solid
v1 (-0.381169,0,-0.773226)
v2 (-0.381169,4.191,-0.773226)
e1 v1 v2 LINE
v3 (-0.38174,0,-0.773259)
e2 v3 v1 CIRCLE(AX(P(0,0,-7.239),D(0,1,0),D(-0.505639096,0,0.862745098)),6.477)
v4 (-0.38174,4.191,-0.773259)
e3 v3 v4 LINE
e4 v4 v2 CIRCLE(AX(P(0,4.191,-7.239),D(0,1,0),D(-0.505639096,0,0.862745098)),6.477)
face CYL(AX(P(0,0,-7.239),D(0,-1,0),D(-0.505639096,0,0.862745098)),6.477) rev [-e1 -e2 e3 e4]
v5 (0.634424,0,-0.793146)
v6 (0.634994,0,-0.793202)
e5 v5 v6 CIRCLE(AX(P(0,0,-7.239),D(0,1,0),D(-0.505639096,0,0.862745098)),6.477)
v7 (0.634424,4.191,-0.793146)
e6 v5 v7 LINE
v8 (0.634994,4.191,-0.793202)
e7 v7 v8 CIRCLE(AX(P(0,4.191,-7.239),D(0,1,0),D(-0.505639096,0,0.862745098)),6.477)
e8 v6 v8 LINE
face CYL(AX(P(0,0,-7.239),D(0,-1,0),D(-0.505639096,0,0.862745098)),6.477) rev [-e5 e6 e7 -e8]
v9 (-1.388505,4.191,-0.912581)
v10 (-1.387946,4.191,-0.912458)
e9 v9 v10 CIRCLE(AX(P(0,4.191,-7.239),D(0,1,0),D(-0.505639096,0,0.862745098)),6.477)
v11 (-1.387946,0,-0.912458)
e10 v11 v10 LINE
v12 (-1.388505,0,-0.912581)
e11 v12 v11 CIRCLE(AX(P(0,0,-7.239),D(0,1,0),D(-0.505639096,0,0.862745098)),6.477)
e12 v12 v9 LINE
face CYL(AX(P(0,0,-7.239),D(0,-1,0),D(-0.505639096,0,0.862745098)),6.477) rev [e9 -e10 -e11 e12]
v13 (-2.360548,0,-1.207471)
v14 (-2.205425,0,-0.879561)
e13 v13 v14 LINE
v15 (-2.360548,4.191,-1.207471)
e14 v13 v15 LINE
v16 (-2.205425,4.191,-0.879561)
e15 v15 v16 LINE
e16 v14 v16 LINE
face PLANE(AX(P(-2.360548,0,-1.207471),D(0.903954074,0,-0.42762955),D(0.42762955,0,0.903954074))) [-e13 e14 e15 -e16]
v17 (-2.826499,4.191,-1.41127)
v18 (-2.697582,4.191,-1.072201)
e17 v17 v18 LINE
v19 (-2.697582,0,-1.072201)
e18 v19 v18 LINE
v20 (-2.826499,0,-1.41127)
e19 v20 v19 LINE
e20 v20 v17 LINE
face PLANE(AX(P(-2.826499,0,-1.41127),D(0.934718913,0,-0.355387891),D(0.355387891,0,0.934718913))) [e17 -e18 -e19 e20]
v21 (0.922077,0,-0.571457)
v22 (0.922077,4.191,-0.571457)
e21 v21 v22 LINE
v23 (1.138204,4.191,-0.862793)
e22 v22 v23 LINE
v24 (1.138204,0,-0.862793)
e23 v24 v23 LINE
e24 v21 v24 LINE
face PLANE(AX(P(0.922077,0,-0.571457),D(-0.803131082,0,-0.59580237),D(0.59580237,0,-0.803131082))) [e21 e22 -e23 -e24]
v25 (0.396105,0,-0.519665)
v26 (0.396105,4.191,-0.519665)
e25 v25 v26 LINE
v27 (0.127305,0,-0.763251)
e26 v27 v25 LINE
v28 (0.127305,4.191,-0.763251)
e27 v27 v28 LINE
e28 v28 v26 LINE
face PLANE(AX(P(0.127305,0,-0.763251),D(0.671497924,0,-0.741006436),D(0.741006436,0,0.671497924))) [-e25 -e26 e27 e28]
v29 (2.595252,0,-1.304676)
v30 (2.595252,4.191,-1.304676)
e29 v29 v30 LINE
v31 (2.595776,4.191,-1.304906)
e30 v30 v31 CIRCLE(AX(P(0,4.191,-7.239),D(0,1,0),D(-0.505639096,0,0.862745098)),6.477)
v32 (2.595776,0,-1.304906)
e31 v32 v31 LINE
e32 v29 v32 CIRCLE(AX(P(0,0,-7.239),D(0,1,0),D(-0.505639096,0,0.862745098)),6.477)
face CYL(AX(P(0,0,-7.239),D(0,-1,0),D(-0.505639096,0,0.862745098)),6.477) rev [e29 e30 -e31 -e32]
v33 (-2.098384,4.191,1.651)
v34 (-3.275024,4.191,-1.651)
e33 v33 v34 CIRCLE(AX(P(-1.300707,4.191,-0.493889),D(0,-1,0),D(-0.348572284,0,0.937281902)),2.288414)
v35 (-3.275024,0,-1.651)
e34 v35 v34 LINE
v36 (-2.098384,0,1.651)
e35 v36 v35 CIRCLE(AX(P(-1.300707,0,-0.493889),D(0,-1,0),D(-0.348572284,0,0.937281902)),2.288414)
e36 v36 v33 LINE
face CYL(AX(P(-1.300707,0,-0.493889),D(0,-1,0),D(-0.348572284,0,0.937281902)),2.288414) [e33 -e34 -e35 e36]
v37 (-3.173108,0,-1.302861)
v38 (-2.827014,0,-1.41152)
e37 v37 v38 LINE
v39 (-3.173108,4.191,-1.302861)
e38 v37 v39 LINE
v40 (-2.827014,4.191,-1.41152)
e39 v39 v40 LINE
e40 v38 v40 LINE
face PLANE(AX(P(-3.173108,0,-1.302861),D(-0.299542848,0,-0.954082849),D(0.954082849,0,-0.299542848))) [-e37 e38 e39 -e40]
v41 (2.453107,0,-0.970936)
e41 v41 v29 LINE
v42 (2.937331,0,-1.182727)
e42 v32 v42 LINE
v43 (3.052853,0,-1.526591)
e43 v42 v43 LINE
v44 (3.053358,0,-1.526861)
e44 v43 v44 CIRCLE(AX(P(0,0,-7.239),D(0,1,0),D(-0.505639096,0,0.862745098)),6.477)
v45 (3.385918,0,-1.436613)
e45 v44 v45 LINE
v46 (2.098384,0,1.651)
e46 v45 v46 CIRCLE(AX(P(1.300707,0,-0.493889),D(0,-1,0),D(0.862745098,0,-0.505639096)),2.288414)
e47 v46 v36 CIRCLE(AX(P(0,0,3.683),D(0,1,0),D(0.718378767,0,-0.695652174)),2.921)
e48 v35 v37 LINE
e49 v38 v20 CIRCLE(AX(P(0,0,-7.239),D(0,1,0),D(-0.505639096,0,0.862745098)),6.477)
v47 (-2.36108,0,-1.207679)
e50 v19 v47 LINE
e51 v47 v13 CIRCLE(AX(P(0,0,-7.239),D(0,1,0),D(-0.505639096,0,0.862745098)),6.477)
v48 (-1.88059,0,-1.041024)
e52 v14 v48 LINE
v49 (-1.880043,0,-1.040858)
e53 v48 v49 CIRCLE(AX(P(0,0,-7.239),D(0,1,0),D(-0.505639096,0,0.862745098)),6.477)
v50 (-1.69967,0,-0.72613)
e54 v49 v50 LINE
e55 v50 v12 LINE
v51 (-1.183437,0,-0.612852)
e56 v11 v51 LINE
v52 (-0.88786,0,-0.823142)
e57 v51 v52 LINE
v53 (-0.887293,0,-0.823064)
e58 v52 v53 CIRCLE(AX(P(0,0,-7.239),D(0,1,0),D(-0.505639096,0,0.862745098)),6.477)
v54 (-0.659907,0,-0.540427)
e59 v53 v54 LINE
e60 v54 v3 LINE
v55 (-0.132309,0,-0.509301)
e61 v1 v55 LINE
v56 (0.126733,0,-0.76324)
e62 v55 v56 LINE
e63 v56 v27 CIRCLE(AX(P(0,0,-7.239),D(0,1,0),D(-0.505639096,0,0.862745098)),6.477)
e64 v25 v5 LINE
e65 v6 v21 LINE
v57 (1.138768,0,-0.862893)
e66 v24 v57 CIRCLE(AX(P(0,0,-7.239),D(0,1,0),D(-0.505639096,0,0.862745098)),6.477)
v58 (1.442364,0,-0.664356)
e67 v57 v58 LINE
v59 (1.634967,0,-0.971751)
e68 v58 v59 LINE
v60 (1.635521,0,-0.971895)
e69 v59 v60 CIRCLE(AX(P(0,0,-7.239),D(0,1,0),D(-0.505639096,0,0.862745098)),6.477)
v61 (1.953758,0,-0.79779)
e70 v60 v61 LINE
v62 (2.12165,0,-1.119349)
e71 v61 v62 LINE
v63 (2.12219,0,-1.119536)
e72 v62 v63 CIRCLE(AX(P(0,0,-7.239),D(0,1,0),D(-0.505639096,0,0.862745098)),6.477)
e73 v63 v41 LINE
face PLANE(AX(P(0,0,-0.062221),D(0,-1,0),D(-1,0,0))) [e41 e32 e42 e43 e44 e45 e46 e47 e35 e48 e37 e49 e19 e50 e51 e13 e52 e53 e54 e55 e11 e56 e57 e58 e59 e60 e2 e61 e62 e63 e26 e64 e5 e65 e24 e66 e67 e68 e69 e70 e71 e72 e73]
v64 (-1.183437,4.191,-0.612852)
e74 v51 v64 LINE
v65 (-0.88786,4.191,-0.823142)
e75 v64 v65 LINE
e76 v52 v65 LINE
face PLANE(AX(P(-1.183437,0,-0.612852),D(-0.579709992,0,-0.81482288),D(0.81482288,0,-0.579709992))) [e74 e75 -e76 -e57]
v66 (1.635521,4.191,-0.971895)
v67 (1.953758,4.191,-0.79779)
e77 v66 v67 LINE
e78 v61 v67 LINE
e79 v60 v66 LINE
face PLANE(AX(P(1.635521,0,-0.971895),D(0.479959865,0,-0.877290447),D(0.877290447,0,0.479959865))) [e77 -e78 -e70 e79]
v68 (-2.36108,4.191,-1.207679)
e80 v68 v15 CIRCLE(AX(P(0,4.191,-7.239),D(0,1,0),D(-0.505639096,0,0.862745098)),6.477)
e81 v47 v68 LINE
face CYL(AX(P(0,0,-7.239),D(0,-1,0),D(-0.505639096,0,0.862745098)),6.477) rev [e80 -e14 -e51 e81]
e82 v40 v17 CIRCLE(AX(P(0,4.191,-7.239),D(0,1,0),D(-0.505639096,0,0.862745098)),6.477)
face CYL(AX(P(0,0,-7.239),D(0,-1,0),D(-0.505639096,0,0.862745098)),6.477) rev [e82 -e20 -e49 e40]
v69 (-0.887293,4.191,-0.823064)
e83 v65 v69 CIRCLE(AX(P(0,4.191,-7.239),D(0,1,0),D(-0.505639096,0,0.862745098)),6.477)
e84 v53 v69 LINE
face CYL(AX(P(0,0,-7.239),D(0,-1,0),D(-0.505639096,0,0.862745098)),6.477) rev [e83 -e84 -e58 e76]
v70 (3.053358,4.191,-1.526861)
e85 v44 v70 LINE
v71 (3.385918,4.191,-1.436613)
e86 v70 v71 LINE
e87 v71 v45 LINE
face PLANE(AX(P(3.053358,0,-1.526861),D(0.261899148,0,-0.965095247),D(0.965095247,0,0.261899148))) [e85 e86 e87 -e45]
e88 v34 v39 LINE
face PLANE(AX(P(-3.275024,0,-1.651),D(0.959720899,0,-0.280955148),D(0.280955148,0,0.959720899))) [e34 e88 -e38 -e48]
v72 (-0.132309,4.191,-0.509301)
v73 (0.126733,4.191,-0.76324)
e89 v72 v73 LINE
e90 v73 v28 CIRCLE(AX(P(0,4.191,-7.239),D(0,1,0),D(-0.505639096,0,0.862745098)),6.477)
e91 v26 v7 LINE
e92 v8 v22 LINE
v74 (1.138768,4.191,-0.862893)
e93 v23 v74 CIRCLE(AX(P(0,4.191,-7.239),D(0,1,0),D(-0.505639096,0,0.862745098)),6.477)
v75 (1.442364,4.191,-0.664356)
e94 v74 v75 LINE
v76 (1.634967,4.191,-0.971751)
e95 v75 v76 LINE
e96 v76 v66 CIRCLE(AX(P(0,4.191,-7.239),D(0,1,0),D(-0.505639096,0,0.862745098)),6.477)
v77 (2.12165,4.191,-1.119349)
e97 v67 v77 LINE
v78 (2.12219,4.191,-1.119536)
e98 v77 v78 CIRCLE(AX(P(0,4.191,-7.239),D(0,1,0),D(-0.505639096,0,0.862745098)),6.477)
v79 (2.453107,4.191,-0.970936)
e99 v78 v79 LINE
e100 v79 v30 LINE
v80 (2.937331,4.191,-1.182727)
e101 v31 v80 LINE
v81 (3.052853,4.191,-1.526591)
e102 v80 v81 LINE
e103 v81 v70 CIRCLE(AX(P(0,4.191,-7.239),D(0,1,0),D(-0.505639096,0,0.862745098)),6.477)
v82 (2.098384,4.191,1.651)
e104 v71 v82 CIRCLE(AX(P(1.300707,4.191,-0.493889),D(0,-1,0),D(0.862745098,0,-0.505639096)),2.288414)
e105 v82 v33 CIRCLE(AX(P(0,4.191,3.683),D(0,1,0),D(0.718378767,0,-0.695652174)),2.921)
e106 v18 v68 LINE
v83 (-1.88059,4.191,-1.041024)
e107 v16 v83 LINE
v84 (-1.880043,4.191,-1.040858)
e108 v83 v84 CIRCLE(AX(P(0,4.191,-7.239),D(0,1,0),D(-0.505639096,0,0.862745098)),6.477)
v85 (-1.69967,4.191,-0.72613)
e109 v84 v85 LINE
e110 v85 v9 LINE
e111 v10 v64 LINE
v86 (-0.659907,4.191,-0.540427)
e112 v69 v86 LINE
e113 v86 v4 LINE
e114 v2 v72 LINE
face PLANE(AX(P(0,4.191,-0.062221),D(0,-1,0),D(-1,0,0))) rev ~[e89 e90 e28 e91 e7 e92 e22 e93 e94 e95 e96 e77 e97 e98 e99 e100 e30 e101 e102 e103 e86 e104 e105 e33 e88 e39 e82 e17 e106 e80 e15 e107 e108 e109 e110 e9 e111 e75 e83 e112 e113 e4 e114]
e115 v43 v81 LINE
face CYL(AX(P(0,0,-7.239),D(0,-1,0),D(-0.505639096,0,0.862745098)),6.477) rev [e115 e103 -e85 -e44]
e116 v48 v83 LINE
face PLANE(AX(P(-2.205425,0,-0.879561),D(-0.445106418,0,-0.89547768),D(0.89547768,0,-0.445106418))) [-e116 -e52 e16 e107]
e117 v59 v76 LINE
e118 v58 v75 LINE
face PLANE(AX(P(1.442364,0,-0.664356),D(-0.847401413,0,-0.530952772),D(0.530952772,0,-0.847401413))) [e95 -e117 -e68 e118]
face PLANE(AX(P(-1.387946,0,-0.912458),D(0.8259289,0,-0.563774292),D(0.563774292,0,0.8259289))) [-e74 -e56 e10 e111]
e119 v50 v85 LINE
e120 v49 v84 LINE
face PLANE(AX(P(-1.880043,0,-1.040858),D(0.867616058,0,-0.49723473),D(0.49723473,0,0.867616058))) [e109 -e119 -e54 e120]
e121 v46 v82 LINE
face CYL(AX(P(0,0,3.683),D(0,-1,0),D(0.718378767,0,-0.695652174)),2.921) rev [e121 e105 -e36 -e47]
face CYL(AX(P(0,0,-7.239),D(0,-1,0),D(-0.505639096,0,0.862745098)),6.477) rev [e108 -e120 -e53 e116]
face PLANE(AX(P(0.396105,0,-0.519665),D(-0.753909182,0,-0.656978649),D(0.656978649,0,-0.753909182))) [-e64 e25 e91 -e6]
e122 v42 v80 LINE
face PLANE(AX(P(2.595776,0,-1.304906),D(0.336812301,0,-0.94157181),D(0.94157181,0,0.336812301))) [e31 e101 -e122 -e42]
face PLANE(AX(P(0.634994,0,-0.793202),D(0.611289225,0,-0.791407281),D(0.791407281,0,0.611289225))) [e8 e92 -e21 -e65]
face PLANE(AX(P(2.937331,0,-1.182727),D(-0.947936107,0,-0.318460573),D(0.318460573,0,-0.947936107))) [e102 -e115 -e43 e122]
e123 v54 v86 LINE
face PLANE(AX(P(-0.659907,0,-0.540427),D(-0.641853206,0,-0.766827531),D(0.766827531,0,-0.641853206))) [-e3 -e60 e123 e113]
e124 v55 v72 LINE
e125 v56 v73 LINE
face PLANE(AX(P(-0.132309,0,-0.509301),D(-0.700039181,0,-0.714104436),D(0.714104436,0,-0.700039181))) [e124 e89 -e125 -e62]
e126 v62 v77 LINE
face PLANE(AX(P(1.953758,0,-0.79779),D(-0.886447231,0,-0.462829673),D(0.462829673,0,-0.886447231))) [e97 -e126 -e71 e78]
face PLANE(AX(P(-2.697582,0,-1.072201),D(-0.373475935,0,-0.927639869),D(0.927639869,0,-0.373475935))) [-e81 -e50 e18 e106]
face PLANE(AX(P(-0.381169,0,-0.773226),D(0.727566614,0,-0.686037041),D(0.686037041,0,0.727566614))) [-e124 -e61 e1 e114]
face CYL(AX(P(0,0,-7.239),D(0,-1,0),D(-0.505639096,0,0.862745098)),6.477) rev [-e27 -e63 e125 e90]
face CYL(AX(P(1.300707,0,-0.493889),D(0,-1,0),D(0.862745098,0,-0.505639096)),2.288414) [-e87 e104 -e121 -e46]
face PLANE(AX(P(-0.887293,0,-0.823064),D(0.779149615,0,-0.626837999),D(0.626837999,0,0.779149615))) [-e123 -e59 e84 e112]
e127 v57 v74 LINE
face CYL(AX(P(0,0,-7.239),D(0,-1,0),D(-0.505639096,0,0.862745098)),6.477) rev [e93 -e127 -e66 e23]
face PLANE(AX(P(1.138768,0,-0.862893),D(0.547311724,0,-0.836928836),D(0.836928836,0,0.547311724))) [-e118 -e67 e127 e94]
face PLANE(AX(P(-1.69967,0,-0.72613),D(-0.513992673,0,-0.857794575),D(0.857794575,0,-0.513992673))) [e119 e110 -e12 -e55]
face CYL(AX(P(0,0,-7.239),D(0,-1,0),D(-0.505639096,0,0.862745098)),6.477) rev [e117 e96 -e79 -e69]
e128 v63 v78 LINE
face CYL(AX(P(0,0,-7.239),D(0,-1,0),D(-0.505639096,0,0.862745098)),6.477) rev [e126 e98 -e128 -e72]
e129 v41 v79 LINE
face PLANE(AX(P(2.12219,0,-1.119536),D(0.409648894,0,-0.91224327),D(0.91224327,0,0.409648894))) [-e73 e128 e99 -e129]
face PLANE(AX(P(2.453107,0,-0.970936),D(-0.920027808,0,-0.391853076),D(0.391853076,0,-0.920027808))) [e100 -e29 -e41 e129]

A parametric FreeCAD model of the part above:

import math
import FreeCAD as App
import Part
import Sketcher
Q = App.Units.Quantity

doc = App.newDocument("Part")
body = doc.addObject("PartDesign::Body", "Body")

sketch1 = body.newObject("Sketcher::SketchObject", "Sketch")
sketch1.AttachmentSupport = (doc.getObject("XZ_Plane"), [""])
sketch1.MapMode = "FlatFace"
sketch1.addGeometry([
    Part.ArcOfCircle(Part.Circle(App.Vector(0, -7.2, 0), App.Vector(0, 0, 1), 6.5), math.radians(60), math.radians(120)),
    Part.ArcOfCircle(Part.Circle(App.Vector(-1.3, -0.5, 0), App.Vector(0, 0, 1), 2.3), math.radians(110), math.radians(210)),
    Part.ArcOfCircle(Part.Circle(App.Vector(0, 3.7, 0), App.Vector(0, 0, 1), 2.9), math.radians(-136), math.radians(-44)),
    Part.ArcOfCircle(Part.Circle(App.Vector(1.3, -0.5, 0), App.Vector(0, 0, 1), 2.3), math.radians(-30), math.radians(70)),
], False)
sketch1.addConstraint([
    Sketcher.Constraint("Coincident", 0, 2, 1, 2),
    Sketcher.Constraint("Coincident", 1, 1, 2, 1),
    Sketcher.Constraint("Coincident", 2, 2, 3, 2),
    Sketcher.Constraint("Coincident", 3, 1, 0, 1),
    Sketcher.Constraint("Equal", 1, 3),
    Sketcher.Constraint("Symmetric", 1, 3, 3, 3, -2),
    Sketcher.Constraint("PointOnObject", 0, 3, -2),
    Sketcher.Constraint("PointOnObject", 2, 3, -2),
    Sketcher.Constraint("Radius", 0, Q("0.255 in")),
    Sketcher.Constraint("Radius", 2, Q("0.115 in")),
    Sketcher.Constraint("DistanceY", 0, 3, 2, 3, Q("0.43 in")),
    Sketcher.Constraint("DistanceY", 0, 2, 2, 3, Q("0.21 in")),
    Sketcher.Constraint("DistanceY", 1, 1, 2, 3, Q("0.08 in")),
    Sketcher.Constraint("DistanceY", 0, 3, -1, 1, Q("0.285 in")),
    Sketcher.Constraint("Radius", 1, Q("2.288414 mm")),
])
pad1 = body.newObject("PartDesign::Pad", "Pad")
pad1.Profile = sketch1
pad1.Length = Q("0.165 in")
pad1.Reversed = True

sketch2 = body.newObject("Sketcher::SketchObject", "Sketch001")
sketch2.AttachmentSupport = (doc.getObject("XZ_Plane"), [""])
sketch2.MapMode = "FlatFace"
sketch2.addGeometry([
    Part.ArcOfCircle(Part.Circle(App.Vector(0, -7.24, 0), App.Vector(0, 0, 1), 6.48), math.radians(118.13), math.radians(120.37)),
    Part.LineSegment(App.Vector(-3.28, -1.65, 0), App.Vector(-3.17, -1.3, 0)),
    Part.LineSegment(App.Vector(-3.17, -1.3, 0), App.Vector(-2.83, -1.41, 0)),
    Part.ArcOfCircle(Part.Circle(App.Vector(0, -7.24, 0), App.Vector(0, 0, 1), 6.48), math.radians(115.88), math.radians(118.13)),
], False)
sketch2.addConstraint([
    Sketcher.Constraint("Coincident", 0, 2, 1, 1),
    Sketcher.Constraint("Coincident", 1, 2, 2, 1),
    Sketcher.Constraint("Coincident", 2, 2, 3, 1),
    Sketcher.Constraint("Tangent", 3, 2, 0, 1),
    Sketcher.Constraint("Equal", 0, 3),
    Sketcher.Constraint("PointOnObject", 0, 3, -2),
    Sketcher.Constraint("Equal", 1, 2),
    Sketcher.Constraint("Radius", 0, Q("0.255 in")),
    Sketcher.Constraint("DistanceY", 0, 3, 0, 2, Q("0.22 in")),
    Sketcher.Constraint("DistanceY", 0, 3, -1, 1, Q("0.285 in")),
    Sketcher.Constraint("Distance", 1, Q("0.36275 mm")),
    Sketcher.Constraint("DistanceY", 1, 2, -1, 1, Q("1.302861 mm")),
    Sketcher.Constraint("DistanceX", 1, 2, 3, 2, Q("0.11974 mm")),
])
pocket1 = body.newObject("PartDesign::Pocket", "Pocket")
pocket1.Profile = sketch2
pocket1.Length = Q("0.165 in")
doc.recompute()

datumline = body.newObject("PartDesign::Line", "DatumLine")
datumline.Placement = App.Placement(App.Vector(0, 0, -7.239), App.Rotation(App.Vector(0, 0, 1), App.Vector(0, 1, 0)))
polarpattern = body.newObject("PartDesign::PolarPattern", "PolarPattern")
polarpattern.Originals = [pocket1]
polarpattern.Axis = (datumline, [""])
polarpattern.Angle = 63
polarpattern.Occurrences = 15
body.Tip = polarpattern

doc.recompute()
